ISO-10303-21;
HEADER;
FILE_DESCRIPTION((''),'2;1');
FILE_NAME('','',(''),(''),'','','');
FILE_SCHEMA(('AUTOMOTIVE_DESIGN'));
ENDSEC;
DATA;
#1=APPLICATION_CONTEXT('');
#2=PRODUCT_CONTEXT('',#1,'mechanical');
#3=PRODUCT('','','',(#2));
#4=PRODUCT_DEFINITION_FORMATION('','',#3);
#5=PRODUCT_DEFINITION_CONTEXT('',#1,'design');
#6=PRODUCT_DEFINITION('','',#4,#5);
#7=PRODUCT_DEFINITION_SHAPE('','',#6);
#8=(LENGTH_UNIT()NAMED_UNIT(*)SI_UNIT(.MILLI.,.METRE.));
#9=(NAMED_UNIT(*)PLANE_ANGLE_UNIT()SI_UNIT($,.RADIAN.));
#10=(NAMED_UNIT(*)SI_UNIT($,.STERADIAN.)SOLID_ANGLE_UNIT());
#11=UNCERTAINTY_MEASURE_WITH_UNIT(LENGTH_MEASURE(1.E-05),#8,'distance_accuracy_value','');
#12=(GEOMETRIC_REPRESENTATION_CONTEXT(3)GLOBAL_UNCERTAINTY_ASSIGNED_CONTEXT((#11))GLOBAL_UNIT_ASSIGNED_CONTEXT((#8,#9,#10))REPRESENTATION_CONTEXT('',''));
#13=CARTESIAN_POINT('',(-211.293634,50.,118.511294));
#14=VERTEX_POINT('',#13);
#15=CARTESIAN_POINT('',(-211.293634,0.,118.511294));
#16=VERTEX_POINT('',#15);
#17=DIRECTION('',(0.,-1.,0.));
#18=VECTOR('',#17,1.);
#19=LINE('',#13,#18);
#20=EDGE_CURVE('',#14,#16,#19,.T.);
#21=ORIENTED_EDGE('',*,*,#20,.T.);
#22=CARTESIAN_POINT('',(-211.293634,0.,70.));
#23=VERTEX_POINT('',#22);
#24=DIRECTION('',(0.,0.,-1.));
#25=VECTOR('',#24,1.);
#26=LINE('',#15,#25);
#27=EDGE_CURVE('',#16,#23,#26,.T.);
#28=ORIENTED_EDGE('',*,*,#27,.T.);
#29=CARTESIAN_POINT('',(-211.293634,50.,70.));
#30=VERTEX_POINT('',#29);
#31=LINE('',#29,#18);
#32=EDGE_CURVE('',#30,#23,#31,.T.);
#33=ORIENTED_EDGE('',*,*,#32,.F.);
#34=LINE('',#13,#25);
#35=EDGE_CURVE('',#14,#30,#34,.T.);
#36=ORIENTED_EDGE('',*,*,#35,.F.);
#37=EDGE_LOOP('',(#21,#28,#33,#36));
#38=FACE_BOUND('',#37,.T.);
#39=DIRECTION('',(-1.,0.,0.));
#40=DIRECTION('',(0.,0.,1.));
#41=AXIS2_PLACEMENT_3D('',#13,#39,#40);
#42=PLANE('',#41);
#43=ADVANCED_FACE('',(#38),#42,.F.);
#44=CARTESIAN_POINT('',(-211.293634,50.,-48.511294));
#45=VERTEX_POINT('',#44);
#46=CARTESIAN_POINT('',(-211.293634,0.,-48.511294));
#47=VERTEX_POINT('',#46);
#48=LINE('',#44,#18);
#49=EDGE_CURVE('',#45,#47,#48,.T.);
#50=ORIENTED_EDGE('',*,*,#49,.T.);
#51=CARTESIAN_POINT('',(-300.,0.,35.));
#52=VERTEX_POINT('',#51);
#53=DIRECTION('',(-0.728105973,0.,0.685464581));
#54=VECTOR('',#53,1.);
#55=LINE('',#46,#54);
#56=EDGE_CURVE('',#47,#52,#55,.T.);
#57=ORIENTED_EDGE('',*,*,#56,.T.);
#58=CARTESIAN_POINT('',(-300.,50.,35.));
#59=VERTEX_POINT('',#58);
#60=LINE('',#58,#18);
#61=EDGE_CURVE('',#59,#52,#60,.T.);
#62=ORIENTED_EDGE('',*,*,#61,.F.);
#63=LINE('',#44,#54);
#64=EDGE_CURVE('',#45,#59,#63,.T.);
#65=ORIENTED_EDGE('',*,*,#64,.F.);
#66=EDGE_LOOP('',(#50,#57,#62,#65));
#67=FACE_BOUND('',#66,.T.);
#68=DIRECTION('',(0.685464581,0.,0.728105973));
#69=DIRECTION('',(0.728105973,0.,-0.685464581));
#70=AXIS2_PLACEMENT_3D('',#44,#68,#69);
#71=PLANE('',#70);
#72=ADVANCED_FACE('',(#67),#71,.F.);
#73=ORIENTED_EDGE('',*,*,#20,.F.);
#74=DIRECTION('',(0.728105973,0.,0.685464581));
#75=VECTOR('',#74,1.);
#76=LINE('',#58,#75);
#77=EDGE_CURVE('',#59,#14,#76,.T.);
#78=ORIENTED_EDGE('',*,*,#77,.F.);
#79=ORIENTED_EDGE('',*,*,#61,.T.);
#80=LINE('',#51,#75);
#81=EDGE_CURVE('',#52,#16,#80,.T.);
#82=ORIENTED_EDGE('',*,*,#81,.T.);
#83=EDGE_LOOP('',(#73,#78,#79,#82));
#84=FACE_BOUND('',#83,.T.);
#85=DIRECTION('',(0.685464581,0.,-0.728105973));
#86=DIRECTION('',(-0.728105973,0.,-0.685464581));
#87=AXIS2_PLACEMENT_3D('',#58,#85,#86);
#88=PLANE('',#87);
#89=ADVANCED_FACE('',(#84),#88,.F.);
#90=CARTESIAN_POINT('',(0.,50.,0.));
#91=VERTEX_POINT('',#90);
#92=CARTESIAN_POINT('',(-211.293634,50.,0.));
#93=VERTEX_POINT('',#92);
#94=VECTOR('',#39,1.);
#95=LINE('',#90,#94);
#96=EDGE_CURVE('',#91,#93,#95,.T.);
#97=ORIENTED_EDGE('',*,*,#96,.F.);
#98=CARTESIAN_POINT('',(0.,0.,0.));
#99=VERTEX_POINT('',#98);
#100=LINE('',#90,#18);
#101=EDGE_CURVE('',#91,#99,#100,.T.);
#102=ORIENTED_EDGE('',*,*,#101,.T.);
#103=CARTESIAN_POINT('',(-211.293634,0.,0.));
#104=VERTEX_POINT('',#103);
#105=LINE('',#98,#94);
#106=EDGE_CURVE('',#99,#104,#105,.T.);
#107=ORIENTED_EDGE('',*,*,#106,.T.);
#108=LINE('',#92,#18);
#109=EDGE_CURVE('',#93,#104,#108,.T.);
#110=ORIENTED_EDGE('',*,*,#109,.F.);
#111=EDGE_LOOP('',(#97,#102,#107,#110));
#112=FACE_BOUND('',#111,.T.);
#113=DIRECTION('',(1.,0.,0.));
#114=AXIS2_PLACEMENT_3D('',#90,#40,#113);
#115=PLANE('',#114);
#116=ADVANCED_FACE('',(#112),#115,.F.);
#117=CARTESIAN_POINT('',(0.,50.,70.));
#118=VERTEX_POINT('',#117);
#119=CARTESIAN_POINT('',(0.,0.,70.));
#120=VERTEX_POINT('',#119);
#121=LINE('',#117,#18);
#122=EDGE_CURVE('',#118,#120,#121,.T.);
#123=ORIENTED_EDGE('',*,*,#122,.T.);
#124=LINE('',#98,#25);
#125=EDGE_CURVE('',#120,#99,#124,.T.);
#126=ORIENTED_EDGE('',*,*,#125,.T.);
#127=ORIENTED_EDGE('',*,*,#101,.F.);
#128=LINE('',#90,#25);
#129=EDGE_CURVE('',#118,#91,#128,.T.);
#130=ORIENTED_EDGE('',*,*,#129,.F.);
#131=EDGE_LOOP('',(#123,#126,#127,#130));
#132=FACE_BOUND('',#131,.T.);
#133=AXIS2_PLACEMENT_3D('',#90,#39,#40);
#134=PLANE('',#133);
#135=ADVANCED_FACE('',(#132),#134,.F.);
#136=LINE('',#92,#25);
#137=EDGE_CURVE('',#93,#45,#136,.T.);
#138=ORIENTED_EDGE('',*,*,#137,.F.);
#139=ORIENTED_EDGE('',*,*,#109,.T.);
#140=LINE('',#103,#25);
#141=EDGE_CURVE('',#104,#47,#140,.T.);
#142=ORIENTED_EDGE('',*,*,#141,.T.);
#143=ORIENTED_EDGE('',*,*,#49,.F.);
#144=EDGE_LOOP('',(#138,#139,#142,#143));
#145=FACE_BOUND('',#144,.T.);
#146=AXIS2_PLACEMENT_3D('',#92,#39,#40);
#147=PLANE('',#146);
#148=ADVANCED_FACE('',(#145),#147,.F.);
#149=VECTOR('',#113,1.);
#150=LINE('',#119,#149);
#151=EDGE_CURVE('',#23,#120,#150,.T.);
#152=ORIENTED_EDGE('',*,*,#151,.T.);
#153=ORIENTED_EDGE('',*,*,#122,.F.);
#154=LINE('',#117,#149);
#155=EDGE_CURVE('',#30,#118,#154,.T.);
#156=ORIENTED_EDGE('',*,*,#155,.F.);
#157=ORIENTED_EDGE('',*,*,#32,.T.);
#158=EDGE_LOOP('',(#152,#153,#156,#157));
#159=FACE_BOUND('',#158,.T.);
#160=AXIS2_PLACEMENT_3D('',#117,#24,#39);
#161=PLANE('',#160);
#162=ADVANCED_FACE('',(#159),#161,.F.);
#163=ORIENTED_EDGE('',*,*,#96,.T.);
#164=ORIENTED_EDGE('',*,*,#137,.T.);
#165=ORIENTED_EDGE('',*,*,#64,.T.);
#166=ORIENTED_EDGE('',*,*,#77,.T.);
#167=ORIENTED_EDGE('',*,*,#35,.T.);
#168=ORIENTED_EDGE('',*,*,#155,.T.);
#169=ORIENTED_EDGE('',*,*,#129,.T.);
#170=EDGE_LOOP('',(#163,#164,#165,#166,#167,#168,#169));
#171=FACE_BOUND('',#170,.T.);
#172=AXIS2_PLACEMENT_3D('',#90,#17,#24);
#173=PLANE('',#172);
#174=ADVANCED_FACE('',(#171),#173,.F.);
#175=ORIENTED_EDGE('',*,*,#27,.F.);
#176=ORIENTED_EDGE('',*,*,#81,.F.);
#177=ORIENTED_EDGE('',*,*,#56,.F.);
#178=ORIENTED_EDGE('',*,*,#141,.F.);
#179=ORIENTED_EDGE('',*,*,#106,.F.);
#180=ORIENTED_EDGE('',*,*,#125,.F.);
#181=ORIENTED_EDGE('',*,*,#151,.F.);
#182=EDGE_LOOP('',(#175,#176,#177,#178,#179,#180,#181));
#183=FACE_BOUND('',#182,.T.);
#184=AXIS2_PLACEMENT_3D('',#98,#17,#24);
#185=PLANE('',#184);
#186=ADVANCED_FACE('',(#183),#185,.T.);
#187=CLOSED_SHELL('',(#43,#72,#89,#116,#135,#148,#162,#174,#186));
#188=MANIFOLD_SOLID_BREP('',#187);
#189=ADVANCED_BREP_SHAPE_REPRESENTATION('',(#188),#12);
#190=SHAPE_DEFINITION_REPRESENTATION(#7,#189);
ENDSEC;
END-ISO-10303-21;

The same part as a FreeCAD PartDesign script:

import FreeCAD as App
import Part
import Sketcher

V = App.Vector
Q = App.Units.Quantity

doc = App.newDocument("Part")
body = doc.addObject("PartDesign::Body", "Body")

# Sketch on XZ plane
sketch1 = body.newObject("Sketcher::SketchObject", "Sketch")
sketch1.AttachmentSupport = (doc.getObject("XZ_Plane"), [""])
sketch1.MapMode = "FlatFace"
sketch1.addGeometry([
    Part.LineSegment(V(-211, 0, 0), V(-211, -49, 0)),  # 0
    Part.LineSegment(V(-211, -49, 0), V(-300, 35, 0)),  # 1
    Part.LineSegment(V(-300, 35, 0), V(-211, 119, 0)),  # 2
    Part.LineSegment(V(-211, 119, 0), V(-211, 70, 0)),  # 3
    Part.LineSegment(V(-211, 70, 0), V(0, 70, 0)),  # 4
    Part.LineSegment(V(0, 70, 0), V(0, 0, 0)),  # 5
    Part.LineSegment(V(0, 0, 0), V(-211, 0, 0)),  # 6
], False)
sketch1.addConstraint([
    Sketcher.Constraint("Coincident", 0, 2, 1, 1),
    Sketcher.Constraint("Coincident", 1, 2, 2, 1),
    Sketcher.Constraint("Coincident", 2, 2, 3, 1),
    Sketcher.Constraint("Coincident", 3, 2, 4, 1),
    Sketcher.Constraint("Coincident", 4, 2, 5, 1),
    Sketcher.Constraint("Coincident", 5, 2, 6, 1),
    Sketcher.Constraint("Coincident", 6, 2, 0, 1),
    Sketcher.Constraint("Vertical", 0),
    Sketcher.Constraint("Vertical", 3),
    Sketcher.Constraint("Horizontal", 4),
    Sketcher.Constraint("Vertical", 5),
    Sketcher.Constraint("Horizontal", 6),
    Sketcher.Constraint("Coincident", 5, 2, -1, 1),
    Sketcher.Constraint("Vertical", 0, 2, 2, 2),
    Sketcher.Constraint("Equal", 0, 3),
    Sketcher.Constraint("Equal", 1, 2),
    Sketcher.Constraint("DistanceY", 5, 2, 5, 1, Q("70 mm")),
    Sketcher.Constraint("DistanceX", 1, 2, -1, 1, Q("300 mm")),
    Sketcher.Constraint("Distance", 1, Q("121.831668 mm")),
    Sketcher.Constraint("DistanceX", 4, 1, 4, 2, Q("211.293634 mm")),
])
pad1 = body.newObject("PartDesign::Pad", "Pad")
pad1.Profile = sketch1
pad1.Length = 50
pad1.Reversed = True

doc.recompute()
